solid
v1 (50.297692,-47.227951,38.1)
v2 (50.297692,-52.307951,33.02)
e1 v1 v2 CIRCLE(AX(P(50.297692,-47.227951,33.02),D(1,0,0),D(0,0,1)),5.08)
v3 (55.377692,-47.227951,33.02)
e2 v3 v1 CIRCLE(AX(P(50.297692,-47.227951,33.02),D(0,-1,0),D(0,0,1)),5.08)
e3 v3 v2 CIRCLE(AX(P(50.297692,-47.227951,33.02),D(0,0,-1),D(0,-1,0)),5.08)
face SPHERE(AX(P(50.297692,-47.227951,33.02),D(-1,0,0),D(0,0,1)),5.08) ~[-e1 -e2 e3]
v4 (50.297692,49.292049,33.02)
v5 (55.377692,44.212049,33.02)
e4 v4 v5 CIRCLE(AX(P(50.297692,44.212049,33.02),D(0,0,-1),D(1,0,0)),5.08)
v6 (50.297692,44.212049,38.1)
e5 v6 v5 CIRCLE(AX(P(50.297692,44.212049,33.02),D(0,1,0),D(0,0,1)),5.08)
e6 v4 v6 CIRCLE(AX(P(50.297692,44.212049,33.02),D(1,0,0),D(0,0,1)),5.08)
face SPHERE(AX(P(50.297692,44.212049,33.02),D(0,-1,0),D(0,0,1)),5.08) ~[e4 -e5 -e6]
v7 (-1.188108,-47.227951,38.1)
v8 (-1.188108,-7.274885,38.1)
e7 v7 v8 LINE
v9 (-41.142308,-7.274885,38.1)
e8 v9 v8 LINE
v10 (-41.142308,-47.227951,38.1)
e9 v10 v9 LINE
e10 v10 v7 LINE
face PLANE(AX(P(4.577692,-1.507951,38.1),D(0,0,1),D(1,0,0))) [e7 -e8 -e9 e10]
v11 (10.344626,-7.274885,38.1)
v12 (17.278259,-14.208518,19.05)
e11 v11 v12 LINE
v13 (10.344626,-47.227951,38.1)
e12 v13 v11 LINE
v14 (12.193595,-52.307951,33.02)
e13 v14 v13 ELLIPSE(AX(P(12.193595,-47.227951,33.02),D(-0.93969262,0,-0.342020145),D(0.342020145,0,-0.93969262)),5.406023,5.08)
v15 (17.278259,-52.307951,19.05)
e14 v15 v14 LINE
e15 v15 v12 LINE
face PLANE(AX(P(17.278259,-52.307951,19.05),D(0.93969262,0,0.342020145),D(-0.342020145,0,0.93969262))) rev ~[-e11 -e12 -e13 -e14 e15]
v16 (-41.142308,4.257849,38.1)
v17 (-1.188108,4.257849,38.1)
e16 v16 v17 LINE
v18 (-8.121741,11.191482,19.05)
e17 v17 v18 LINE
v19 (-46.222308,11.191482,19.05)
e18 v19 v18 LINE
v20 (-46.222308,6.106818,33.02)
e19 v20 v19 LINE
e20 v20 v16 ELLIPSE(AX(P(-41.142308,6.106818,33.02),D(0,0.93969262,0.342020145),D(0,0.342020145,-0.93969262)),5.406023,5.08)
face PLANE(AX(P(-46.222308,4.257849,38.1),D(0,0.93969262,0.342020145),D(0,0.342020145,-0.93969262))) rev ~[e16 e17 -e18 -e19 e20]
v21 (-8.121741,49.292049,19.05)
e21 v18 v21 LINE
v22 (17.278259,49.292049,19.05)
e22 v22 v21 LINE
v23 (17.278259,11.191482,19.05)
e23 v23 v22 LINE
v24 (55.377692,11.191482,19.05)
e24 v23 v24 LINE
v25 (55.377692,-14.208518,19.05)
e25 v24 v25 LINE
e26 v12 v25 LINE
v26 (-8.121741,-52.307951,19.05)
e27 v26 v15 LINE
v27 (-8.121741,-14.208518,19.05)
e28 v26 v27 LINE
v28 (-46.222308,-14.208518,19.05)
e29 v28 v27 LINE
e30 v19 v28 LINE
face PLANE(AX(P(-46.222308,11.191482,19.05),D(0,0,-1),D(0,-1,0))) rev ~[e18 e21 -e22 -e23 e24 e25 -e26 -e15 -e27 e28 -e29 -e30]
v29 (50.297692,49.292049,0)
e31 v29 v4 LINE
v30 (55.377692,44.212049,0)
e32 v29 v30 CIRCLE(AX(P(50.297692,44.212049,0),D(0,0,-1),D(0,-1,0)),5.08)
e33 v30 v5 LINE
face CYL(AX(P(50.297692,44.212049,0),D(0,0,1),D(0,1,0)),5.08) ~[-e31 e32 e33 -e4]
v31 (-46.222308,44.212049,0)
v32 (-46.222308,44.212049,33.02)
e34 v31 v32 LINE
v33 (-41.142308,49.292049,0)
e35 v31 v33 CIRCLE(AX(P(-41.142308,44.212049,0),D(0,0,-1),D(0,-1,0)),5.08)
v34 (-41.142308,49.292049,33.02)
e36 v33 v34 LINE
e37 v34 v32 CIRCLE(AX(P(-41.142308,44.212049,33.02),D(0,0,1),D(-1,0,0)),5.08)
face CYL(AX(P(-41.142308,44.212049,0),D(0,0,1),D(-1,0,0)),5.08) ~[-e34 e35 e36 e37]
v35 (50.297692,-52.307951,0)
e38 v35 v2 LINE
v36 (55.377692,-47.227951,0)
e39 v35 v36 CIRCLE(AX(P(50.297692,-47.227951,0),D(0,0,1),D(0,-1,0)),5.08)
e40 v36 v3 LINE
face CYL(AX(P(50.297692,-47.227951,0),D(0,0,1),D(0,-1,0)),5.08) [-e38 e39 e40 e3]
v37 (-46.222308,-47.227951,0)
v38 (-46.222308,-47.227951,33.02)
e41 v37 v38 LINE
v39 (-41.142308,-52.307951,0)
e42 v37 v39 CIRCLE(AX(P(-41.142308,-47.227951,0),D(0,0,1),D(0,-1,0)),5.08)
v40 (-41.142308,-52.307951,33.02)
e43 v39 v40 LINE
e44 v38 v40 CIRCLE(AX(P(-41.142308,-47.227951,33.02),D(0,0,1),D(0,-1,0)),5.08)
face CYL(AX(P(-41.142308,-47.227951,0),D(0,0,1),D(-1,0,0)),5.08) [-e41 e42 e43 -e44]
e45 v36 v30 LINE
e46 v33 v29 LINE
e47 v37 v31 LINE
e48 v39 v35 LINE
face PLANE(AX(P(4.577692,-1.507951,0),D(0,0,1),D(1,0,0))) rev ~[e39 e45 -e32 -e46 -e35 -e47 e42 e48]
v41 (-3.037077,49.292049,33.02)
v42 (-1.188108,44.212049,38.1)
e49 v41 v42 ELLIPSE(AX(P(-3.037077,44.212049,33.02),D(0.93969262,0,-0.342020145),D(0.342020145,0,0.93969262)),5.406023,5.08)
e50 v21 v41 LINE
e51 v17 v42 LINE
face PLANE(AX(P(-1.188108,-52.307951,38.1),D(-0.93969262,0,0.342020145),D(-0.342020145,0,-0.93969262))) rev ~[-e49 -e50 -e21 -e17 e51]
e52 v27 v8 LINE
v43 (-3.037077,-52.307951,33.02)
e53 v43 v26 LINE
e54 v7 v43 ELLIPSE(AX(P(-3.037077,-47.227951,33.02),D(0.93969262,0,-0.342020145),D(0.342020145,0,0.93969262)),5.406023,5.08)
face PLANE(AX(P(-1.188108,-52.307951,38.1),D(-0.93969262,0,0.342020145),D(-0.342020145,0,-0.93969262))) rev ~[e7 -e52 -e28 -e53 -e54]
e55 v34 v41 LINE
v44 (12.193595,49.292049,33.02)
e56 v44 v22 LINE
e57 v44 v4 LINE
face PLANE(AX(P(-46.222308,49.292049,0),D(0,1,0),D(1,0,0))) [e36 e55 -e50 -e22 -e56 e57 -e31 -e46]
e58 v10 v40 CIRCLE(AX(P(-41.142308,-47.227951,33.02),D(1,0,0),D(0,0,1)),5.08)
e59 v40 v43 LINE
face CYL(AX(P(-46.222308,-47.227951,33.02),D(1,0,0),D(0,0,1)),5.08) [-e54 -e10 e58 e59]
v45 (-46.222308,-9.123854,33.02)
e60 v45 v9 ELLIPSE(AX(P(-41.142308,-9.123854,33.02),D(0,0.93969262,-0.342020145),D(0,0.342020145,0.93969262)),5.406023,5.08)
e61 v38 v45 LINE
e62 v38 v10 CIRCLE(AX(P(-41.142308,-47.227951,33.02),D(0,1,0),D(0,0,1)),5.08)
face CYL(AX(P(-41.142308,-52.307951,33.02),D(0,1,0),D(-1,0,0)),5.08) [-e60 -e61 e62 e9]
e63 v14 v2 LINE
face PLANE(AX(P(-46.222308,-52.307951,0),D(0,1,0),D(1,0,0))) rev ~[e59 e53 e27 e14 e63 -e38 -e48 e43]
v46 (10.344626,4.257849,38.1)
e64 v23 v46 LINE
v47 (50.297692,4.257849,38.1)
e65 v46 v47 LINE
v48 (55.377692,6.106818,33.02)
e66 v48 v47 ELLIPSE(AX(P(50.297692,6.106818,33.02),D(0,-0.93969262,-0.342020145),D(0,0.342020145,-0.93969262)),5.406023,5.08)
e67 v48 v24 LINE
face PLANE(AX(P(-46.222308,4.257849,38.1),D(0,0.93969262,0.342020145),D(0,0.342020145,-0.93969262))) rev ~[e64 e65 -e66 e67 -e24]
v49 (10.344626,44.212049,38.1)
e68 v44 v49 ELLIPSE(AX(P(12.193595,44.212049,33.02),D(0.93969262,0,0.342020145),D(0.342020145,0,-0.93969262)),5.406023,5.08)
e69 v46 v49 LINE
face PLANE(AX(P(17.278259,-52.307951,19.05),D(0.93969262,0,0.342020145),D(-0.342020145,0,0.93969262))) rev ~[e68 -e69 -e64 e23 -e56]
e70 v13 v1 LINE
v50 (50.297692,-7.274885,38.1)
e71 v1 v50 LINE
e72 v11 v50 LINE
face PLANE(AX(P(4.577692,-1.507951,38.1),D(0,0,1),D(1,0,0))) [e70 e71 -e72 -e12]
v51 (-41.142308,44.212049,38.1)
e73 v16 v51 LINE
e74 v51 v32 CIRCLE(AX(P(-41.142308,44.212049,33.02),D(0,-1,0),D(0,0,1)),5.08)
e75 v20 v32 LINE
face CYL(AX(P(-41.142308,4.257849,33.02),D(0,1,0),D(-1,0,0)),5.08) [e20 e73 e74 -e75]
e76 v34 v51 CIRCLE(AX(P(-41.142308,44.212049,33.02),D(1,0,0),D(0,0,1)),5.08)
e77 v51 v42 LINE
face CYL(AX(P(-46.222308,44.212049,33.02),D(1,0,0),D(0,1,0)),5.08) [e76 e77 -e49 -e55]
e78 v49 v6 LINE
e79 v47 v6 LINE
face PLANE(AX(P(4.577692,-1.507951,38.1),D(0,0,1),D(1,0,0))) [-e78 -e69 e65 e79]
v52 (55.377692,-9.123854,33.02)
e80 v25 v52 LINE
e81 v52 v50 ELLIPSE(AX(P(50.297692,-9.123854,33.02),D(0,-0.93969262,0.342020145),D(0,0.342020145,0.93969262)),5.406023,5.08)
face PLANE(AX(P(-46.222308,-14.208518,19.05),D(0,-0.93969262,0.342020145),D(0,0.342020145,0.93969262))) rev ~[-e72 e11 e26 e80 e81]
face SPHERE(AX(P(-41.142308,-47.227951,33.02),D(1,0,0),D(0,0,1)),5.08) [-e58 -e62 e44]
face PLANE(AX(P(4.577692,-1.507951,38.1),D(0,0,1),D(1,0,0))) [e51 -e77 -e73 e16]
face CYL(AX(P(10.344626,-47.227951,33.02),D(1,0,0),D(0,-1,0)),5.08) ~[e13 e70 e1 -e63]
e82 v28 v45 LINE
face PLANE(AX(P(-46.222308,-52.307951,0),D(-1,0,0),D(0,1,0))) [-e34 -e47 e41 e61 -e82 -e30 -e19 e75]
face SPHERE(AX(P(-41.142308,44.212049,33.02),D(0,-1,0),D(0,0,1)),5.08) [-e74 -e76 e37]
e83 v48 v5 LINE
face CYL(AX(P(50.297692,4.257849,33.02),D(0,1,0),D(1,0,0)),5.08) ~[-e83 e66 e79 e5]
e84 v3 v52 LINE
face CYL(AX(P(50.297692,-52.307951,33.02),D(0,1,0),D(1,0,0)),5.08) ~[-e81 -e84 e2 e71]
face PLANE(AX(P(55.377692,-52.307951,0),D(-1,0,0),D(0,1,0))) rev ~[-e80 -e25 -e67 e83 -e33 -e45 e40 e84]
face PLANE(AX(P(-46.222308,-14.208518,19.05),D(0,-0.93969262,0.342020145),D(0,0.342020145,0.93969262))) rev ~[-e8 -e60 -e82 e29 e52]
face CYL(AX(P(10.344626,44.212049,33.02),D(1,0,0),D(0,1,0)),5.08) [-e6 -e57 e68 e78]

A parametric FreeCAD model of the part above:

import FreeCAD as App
import Part
import Sketcher
Q = App.Units.Quantity


def edges_at(feature, points):
    """Names of the edges that pass closest to the given points."""
    edges = feature.Shape.Edges
    near = lambda p: min(range(len(edges)), key=lambda i: edges[i].distToShape(Part.Vertex(*p))[0])
    return sorted({f"Edge{near(p) + 1}" for p in points})


def add_polygon(sketch, points):
    """Adds a closed chain of lines whose ends are joined by coincident constraints."""
    first, n = sketch.GeometryCount, len(points)
    for a, b in zip(points, points[1:] + points[:1]):
        sketch.addGeometry(Part.LineSegment(App.Vector(*a, 0), App.Vector(*b, 0)), False)
    for i in range(n):
        sketch.addConstraint(Sketcher.Constraint("Coincident", first + i, 2, first + (i + 1) % n, 1))

doc = App.newDocument("Part")
body = doc.addObject("PartDesign::Body", "Body")

# Sketch on XY plane
sketch1 = doc.addObject("Sketcher::SketchObject", "Sketch")
body.addObject(sketch1)
sketch1.AttachmentSupport = (doc.XY_Plane, [""])
sketch1.MapMode = "FlatFace"
add_polygon(sketch1, [(-46.222308, 49.292049), (-46.222308, -52.307951), (55.377692, -52.307951), (55.377692, 49.292049)])  # lines 0-3
sketch1.addConstraint([
    Sketcher.Constraint("Vertical", 0),
    Sketcher.Constraint("Horizontal", 1),
    Sketcher.Constraint("Vertical", 2),
    Sketcher.Constraint("Horizontal", 3),
    Sketcher.Constraint("Equal", 3, 0),
    Sketcher.Constraint("DistanceX", 1, 1, 1, 2, Q("4 in")),
    Sketcher.Constraint("DistanceY", 0, 2, -1, 1, Q("52.307951 mm")),
    Sketcher.Constraint("DistanceX", 0, 2, -1, 1, Q("46.222308 mm")),
])
pad1 = doc.addObject("PartDesign::Pad", "Pad")
body.addObject(pad1)
pad1.Profile = sketch1
pad1.Length = Q("1.5 in")

# Sketch on XZ plane
sketch2 = doc.addObject("Sketcher::SketchObject", "Sketch001")
body.addObject(sketch2)
sketch2.AttachmentSupport = (doc.XZ_Plane, [""])
sketch2.MapMode = "FlatFace"
sketch2.AttachmentOffset = App.Placement(App.Vector(0, 0, 52.307951), App.Rotation())
add_polygon(sketch2, [(10.344626, 38.1), (-1.188108, 38.1), (-8.121741, 19.05), (17.278259, 19.05)])  # lines 0-3
sketch2.addConstraint([
    Sketcher.Constraint("Horizontal", 0),
    Sketcher.Constraint("Horizontal", 2),
    Sketcher.Constraint("Equal", 1, 3),
    Sketcher.Constraint("DistanceX", 2, 1, 2, 2, Q("1 in")),
    Sketcher.Constraint("Angle", 1, Q("-110 deg")),
    Sketcher.Constraint("DistanceY", -1, 1, 0, 2, Q("1.5 in")),
    Sketcher.Constraint("DistanceY", -1, 1, 1, 2, Q("0.75 in")),
    Sketcher.Constraint("DistanceX", 1, 2, -1, 1, Q("8.121741 mm")),
])
pocket1 = doc.addObject("PartDesign::Pocket", "Pocket")
body.addObject(pocket1)
pocket1.Profile = sketch2
pocket1.Type = "ThroughAll"

# Sketch on YZ plane
sketch3 = doc.addObject("Sketcher::SketchObject", "Sketch002")
body.addObject(sketch3)
sketch3.AttachmentSupport = (doc.YZ_Plane, [""])
sketch3.MapMode = "FlatFace"
sketch3.AttachmentOffset = App.Placement(App.Vector(0, 0, -46.222308), App.Rotation())
add_polygon(sketch3, [(-7.274885, 38.1), (4.257849, 38.1), (11.191482, 19.05), (-14.208518, 19.05)])  # lines 0-3
sketch3.addConstraint([
    Sketcher.Constraint("Horizontal", 0),
    Sketcher.Constraint("Horizontal", 2),
    Sketcher.Constraint("Equal", 1, 3),
    Sketcher.Constraint("DistanceX", 2, 2, 2, 1, Q("1 in")),
    Sketcher.Constraint("Angle", 1, Q("-70 deg")),
    Sketcher.Constraint("DistanceY", -1, 1, 0, 2, Q("1.5 in")),
    Sketcher.Constraint("DistanceY", -1, 1, 1, 2, Q("0.75 in")),
    Sketcher.Constraint("DistanceX", -1, 1, 0, 2, Q("4.257849 mm")),
])
pocket2 = doc.addObject("PartDesign::Pocket", "Pocket001")
body.addObject(pocket2)
pocket2.Profile = sketch3
pocket2.Type = "ThroughAll"
pocket2.Reversed = True
doc.recompute()

fillet = doc.addObject("PartDesign::Fillet", "Fillet")
body.addObject(fillet)
fillet.Base = (pocket2, edges_at(pocket2, [
    (32.861, -52.308, 38.1),
    (-23.705, -52.308, 38.1),
    (-46.222, -29.791, 38.1),
    (-46.222, 26.775, 38.1),
    (55.378, 26.775, 38.1),
    (55.378, -29.791, 38.1),
    (-23.705, 49.292, 38.1),
    (32.861, 49.292, 38.1),
    (-46.222, -52.308, 19.05),
    (55.378, -52.308, 19.05),
    (-46.222, 49.292, 19.05),
    (55.378, 49.292, 19.05),
]))
fillet.Radius = Q("0.2 in")

doc.recompute()
